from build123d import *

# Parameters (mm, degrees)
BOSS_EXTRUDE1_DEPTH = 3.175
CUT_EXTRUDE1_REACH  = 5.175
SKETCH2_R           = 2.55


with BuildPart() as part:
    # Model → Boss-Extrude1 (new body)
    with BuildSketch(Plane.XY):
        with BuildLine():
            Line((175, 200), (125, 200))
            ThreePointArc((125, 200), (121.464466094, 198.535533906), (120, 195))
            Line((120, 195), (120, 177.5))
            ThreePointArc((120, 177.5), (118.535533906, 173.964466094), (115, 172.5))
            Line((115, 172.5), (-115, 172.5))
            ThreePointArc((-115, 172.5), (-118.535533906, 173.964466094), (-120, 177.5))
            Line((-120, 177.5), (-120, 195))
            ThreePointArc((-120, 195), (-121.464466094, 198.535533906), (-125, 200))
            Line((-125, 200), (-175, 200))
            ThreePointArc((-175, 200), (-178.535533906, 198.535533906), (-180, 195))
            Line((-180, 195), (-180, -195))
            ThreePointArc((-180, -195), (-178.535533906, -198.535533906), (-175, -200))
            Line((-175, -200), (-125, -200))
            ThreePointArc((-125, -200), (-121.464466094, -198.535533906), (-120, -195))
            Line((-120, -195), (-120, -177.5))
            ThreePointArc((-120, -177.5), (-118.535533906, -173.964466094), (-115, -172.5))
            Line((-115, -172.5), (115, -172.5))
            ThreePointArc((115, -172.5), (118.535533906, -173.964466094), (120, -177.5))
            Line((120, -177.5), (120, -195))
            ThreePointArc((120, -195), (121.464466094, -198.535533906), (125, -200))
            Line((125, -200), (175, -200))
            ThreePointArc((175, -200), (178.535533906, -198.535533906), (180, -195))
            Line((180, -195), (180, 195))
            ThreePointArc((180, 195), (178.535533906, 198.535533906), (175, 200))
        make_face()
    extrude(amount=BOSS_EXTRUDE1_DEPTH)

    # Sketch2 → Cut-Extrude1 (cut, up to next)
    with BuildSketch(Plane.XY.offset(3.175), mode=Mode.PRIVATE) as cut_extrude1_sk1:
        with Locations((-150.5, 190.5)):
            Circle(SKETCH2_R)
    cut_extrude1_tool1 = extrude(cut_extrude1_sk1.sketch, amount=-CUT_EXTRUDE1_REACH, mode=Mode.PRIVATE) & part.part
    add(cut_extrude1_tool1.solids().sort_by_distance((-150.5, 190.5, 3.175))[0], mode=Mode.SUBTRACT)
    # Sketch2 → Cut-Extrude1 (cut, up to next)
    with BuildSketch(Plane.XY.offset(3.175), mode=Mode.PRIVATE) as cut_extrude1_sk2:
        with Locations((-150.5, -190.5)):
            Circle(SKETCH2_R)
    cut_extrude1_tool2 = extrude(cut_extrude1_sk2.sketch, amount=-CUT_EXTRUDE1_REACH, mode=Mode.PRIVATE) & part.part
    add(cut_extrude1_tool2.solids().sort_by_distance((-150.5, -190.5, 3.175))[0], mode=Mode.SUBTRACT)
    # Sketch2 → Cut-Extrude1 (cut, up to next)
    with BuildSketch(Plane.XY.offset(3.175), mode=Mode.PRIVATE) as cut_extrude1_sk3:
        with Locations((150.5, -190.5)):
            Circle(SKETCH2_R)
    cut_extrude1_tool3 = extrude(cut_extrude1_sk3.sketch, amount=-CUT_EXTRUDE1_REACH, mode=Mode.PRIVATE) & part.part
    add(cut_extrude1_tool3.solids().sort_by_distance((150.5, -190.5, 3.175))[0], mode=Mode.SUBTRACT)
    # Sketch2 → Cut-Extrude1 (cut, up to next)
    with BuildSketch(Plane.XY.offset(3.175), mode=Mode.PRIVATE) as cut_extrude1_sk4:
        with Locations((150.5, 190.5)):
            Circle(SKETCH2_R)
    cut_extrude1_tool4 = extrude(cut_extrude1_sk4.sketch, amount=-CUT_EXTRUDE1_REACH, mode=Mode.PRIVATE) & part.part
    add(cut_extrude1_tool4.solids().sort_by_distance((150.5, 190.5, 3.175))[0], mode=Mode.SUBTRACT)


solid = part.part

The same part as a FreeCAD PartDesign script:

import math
import FreeCAD as App
import Part
import Sketcher

V = App.Vector

doc = App.newDocument("Part")
body = doc.addObject("PartDesign::Body", "Body")

sketch1 = doc.addObject("Sketcher::SketchObject", "Sketch")
body.addObject(sketch1)
sketch1.AttachmentSupport = (doc.XY_Plane, [""])
sketch1.MapMode = "FlatFace"
sketch1.addGeometry([
    Part.LineSegment(V(175, 200, 0), V(125, 200, 0)),
    Part.ArcOfCircle(Part.Circle(V(125, 195, 0), V(0, 0, 1), 5), math.radians(90), math.radians(180)),
    Part.LineSegment(V(120, 195, 0), V(120, 177.5, 0)),
    Part.ArcOfCircle(Part.Circle(V(115, 177.5, 0), V(0, 0, 1), 5), math.radians(-90), math.radians(0)),
    Part.LineSegment(V(115, 172.5, 0), V(-115, 172.5, 0)),
    Part.ArcOfCircle(Part.Circle(V(-115, 177.5, 0), V(0, 0, 1), 5), math.radians(180), math.radians(270)),
    Part.LineSegment(V(-120, 177.5, 0), V(-120, 195, 0)),
    Part.ArcOfCircle(Part.Circle(V(-125, 195, 0), V(0, 0, 1), 5), math.radians(0), math.radians(90)),
    Part.LineSegment(V(-125, 200, 0), V(-175, 200, 0)),
    Part.ArcOfCircle(Part.Circle(V(-175, 195, 0), V(0, 0, 1), 5), math.radians(90), math.radians(180)),
    Part.LineSegment(V(-180, 195, 0), V(-180, -195, 0)),
    Part.ArcOfCircle(Part.Circle(V(-175, -195, 0), V(0, 0, 1), 5), math.radians(180), math.radians(270)),
    Part.LineSegment(V(-175, -200, 0), V(-125, -200, 0)),
    Part.ArcOfCircle(Part.Circle(V(-125, -195, 0), V(0, 0, 1), 5), math.radians(-90), math.radians(0)),
    Part.LineSegment(V(-120, -195, 0), V(-120, -177.5, 0)),
    Part.ArcOfCircle(Part.Circle(V(-115, -177.5, 0), V(0, 0, 1), 5), math.radians(90), math.radians(180)),
    Part.LineSegment(V(-115, -172.5, 0), V(115, -172.5, 0)),
    Part.ArcOfCircle(Part.Circle(V(115, -177.5, 0), V(0, 0, 1), 5), math.radians(0), math.radians(90)),
    Part.LineSegment(V(120, -177.5, 0), V(120, -195, 0)),
    Part.ArcOfCircle(Part.Circle(V(125, -195, 0), V(0, 0, 1), 5), math.radians(180), math.radians(270)),
    Part.LineSegment(V(125, -200, 0), V(175, -200, 0)),
    Part.ArcOfCircle(Part.Circle(V(175, -195, 0), V(0, 0, 1), 5), math.radians(-90), math.radians(0)),
    Part.LineSegment(V(180, -195, 0), V(180, 195, 0)),
    Part.ArcOfCircle(Part.Circle(V(175, 195, 0), V(0, 0, 1), 5), math.radians(0), math.radians(90)),
], False)
sketch1.addConstraint([
    Sketcher.Constraint("Tangent", 0, 2, 1, 1),
    Sketcher.Constraint("Tangent", 1, 2, 2, 1),
    Sketcher.Constraint("Tangent", 2, 2, 3, 2),
    Sketcher.Constraint("Tangent", 3, 1, 4, 1),
    Sketcher.Constraint("Tangent", 4, 2, 5, 2),
    Sketcher.Constraint("Tangent", 5, 1, 6, 1),
    Sketcher.Constraint("Tangent", 6, 2, 7, 1),
    Sketcher.Constraint("Tangent", 7, 2, 8, 1),
    Sketcher.Constraint("Tangent", 8, 2, 9, 1),
    Sketcher.Constraint("Tangent", 9, 2, 10, 1),
    Sketcher.Constraint("Tangent", 10, 2, 11, 1),
    Sketcher.Constraint("Tangent", 11, 2, 12, 1),
    Sketcher.Constraint("Tangent", 12, 2, 13, 1),
    Sketcher.Constraint("Tangent", 13, 2, 14, 1),
    Sketcher.Constraint("Tangent", 14, 2, 15, 2),
    Sketcher.Constraint("Tangent", 15, 1, 16, 1),
    Sketcher.Constraint("Tangent", 16, 2, 17, 2),
    Sketcher.Constraint("Tangent", 17, 1, 18, 1),
    Sketcher.Constraint("Tangent", 18, 2, 19, 1),
    Sketcher.Constraint("Tangent", 19, 2, 20, 1),
    Sketcher.Constraint("Tangent", 20, 2, 21, 1),
    Sketcher.Constraint("Tangent", 21, 2, 22, 1),
    Sketcher.Constraint("Tangent", 22, 2, 23, 1),
    Sketcher.Constraint("Tangent", 23, 2, 0, 1),
    Sketcher.Constraint("Horizontal", 0),
    Sketcher.Constraint("Vertical", 2),
    Sketcher.Constraint("Horizontal", 4),
    Sketcher.Constraint("Vertical", 6),
    Sketcher.Constraint("Horizontal", 8),
    Sketcher.Constraint("Vertical", 10),
    Sketcher.Constraint("Horizontal", 12),
    Sketcher.Constraint("Vertical", 14),
    Sketcher.Constraint("Horizontal", 16),
    Sketcher.Constraint("Vertical", 18),
    Sketcher.Constraint("Horizontal", 20),
    Sketcher.Constraint("Vertical", 22),
    Sketcher.Constraint("Equal", 1, 3),
    Sketcher.Constraint("Equal", 3, 5),
    Sketcher.Constraint("Equal", 5, 7),
    Sketcher.Constraint("Equal", 7, 9),
    Sketcher.Constraint("Equal", 9, 11),
    Sketcher.Constraint("Equal", 11, 13),
    Sketcher.Constraint("Equal", 13, 15),
    Sketcher.Constraint("Equal", 15, 17),
    Sketcher.Constraint("Equal", 17, 19),
    Sketcher.Constraint("Equal", 19, 21),
    Sketcher.Constraint("Equal", 21, 23),
    Sketcher.Constraint("Symmetric", 1, 3, 13, 3, -1, 1),
    Sketcher.Constraint("Symmetric", 5, 3, 17, 3, -1, 1),
    Sketcher.Constraint("Symmetric", 9, 3, 21, 3, -1, 1),
    Sketcher.Constraint("Symmetric", 1, 3, 7, 3, -2),
    Sketcher.Constraint("Radius", 1, 5.0),
    Sketcher.Constraint("DistanceX", 0, 2, 0, 1, 50.0),
    Sketcher.Constraint("DistanceX", 4, 2, 4, 1, 230.0),
    Sketcher.Constraint("DistanceY", 10, 2, 10, 1, 390.0),
    Sketcher.Constraint("DistanceY", 2, 2, 2, 1, 17.5),
])
pad1 = doc.addObject("PartDesign::Pad", "Pad")
body.addObject(pad1)
pad1.Profile = sketch1
pad1.Length = 3.175

sketch2 = doc.addObject("Sketcher::SketchObject", "Sketch001")
body.addObject(sketch2)
sketch2.AttachmentSupport = (doc.XY_Plane, [""])
sketch2.MapMode = "FlatFace"
sketch2.AttachmentOffset = App.Placement(V(0, 0, 3.175), App.Rotation())
sketch2.addGeometry(Part.Circle(V(-150.5, 190.5, 0), V(0, 0, 1), 2.55), False)
sketch2.addConstraint([
    Sketcher.Constraint("Diameter", 0, 5.1),
    Sketcher.Constraint("DistanceX", 0, 3, -1, 1, 150.5),
    Sketcher.Constraint("DistanceY", -1, 1, 0, 3, 190.5),
])
pocket1 = doc.addObject("PartDesign::Pocket", "Pocket")
body.addObject(pocket1)
pocket1.Profile = sketch2
pocket1.Type = "UpToFirst"

sketch3 = doc.addObject("Sketcher::SketchObject", "Sketch002")
body.addObject(sketch3)
sketch3.AttachmentSupport = (doc.XY_Plane, [""])
sketch3.MapMode = "FlatFace"
sketch3.AttachmentOffset = App.Placement(V(0, 0, 3.175), App.Rotation())
sketch3.addGeometry(Part.Circle(V(-150.5, -190.5, 0), V(0, 0, 1), 2.55), False)
sketch3.addConstraint([
    Sketcher.Constraint("Diameter", 0, 5.1),
    Sketcher.Constraint("DistanceX", 0, 3, -1, 1, 150.5),
    Sketcher.Constraint("DistanceY", 0, 3, -1, 1, 190.5),
])
pocket2 = doc.addObject("PartDesign::Pocket", "Pocket001")
body.addObject(pocket2)
pocket2.Profile = sketch3
pocket2.Type = "UpToFirst"

sketch4 = doc.addObject("Sketcher::SketchObject", "Sketch003")
body.addObject(sketch4)
sketch4.AttachmentSupport = (doc.XY_Plane, [""])
sketch4.MapMode = "FlatFace"
sketch4.AttachmentOffset = App.Placement(V(0, 0, 3.175), App.Rotation())
sketch4.addGeometry(Part.Circle(V(150.5, -190.5, 0), V(0, 0, 1), 2.55), False)
sketch4.addConstraint([
    Sketcher.Constraint("Diameter", 0, 5.1),
    Sketcher.Constraint("DistanceX", -1, 1, 0, 3, 150.5),
    Sketcher.Constraint("DistanceY", 0, 3, -1, 1, 190.5),
])
pocket3 = doc.addObject("PartDesign::Pocket", "Pocket002")
body.addObject(pocket3)
pocket3.Profile = sketch4
pocket3.Type = "UpToFirst"

sketch5 = doc.addObject("Sketcher::SketchObject", "Sketch004")
body.addObject(sketch5)
sketch5.AttachmentSupport = (doc.XY_Plane, [""])
sketch5.MapMode = "FlatFace"
sketch5.AttachmentOffset = App.Placement(V(0, 0, 3.175), App.Rotation())
sketch5.addGeometry(Part.Circle(V(150.5, 190.5, 0), V(0, 0, 1), 2.55), False)
sketch5.addConstraint([
    Sketcher.Constraint("Diameter", 0, 5.1),
    Sketcher.Constraint("DistanceX", -1, 1, 0, 3, 150.5),
    Sketcher.Constraint("DistanceY", -1, 1, 0, 3, 190.5),
])
pocket4 = doc.addObject("PartDesign::Pocket", "Pocket003")
body.addObject(pocket4)
pocket4.Profile = sketch5
pocket4.Type = "UpToFirst"

doc.recompute()
